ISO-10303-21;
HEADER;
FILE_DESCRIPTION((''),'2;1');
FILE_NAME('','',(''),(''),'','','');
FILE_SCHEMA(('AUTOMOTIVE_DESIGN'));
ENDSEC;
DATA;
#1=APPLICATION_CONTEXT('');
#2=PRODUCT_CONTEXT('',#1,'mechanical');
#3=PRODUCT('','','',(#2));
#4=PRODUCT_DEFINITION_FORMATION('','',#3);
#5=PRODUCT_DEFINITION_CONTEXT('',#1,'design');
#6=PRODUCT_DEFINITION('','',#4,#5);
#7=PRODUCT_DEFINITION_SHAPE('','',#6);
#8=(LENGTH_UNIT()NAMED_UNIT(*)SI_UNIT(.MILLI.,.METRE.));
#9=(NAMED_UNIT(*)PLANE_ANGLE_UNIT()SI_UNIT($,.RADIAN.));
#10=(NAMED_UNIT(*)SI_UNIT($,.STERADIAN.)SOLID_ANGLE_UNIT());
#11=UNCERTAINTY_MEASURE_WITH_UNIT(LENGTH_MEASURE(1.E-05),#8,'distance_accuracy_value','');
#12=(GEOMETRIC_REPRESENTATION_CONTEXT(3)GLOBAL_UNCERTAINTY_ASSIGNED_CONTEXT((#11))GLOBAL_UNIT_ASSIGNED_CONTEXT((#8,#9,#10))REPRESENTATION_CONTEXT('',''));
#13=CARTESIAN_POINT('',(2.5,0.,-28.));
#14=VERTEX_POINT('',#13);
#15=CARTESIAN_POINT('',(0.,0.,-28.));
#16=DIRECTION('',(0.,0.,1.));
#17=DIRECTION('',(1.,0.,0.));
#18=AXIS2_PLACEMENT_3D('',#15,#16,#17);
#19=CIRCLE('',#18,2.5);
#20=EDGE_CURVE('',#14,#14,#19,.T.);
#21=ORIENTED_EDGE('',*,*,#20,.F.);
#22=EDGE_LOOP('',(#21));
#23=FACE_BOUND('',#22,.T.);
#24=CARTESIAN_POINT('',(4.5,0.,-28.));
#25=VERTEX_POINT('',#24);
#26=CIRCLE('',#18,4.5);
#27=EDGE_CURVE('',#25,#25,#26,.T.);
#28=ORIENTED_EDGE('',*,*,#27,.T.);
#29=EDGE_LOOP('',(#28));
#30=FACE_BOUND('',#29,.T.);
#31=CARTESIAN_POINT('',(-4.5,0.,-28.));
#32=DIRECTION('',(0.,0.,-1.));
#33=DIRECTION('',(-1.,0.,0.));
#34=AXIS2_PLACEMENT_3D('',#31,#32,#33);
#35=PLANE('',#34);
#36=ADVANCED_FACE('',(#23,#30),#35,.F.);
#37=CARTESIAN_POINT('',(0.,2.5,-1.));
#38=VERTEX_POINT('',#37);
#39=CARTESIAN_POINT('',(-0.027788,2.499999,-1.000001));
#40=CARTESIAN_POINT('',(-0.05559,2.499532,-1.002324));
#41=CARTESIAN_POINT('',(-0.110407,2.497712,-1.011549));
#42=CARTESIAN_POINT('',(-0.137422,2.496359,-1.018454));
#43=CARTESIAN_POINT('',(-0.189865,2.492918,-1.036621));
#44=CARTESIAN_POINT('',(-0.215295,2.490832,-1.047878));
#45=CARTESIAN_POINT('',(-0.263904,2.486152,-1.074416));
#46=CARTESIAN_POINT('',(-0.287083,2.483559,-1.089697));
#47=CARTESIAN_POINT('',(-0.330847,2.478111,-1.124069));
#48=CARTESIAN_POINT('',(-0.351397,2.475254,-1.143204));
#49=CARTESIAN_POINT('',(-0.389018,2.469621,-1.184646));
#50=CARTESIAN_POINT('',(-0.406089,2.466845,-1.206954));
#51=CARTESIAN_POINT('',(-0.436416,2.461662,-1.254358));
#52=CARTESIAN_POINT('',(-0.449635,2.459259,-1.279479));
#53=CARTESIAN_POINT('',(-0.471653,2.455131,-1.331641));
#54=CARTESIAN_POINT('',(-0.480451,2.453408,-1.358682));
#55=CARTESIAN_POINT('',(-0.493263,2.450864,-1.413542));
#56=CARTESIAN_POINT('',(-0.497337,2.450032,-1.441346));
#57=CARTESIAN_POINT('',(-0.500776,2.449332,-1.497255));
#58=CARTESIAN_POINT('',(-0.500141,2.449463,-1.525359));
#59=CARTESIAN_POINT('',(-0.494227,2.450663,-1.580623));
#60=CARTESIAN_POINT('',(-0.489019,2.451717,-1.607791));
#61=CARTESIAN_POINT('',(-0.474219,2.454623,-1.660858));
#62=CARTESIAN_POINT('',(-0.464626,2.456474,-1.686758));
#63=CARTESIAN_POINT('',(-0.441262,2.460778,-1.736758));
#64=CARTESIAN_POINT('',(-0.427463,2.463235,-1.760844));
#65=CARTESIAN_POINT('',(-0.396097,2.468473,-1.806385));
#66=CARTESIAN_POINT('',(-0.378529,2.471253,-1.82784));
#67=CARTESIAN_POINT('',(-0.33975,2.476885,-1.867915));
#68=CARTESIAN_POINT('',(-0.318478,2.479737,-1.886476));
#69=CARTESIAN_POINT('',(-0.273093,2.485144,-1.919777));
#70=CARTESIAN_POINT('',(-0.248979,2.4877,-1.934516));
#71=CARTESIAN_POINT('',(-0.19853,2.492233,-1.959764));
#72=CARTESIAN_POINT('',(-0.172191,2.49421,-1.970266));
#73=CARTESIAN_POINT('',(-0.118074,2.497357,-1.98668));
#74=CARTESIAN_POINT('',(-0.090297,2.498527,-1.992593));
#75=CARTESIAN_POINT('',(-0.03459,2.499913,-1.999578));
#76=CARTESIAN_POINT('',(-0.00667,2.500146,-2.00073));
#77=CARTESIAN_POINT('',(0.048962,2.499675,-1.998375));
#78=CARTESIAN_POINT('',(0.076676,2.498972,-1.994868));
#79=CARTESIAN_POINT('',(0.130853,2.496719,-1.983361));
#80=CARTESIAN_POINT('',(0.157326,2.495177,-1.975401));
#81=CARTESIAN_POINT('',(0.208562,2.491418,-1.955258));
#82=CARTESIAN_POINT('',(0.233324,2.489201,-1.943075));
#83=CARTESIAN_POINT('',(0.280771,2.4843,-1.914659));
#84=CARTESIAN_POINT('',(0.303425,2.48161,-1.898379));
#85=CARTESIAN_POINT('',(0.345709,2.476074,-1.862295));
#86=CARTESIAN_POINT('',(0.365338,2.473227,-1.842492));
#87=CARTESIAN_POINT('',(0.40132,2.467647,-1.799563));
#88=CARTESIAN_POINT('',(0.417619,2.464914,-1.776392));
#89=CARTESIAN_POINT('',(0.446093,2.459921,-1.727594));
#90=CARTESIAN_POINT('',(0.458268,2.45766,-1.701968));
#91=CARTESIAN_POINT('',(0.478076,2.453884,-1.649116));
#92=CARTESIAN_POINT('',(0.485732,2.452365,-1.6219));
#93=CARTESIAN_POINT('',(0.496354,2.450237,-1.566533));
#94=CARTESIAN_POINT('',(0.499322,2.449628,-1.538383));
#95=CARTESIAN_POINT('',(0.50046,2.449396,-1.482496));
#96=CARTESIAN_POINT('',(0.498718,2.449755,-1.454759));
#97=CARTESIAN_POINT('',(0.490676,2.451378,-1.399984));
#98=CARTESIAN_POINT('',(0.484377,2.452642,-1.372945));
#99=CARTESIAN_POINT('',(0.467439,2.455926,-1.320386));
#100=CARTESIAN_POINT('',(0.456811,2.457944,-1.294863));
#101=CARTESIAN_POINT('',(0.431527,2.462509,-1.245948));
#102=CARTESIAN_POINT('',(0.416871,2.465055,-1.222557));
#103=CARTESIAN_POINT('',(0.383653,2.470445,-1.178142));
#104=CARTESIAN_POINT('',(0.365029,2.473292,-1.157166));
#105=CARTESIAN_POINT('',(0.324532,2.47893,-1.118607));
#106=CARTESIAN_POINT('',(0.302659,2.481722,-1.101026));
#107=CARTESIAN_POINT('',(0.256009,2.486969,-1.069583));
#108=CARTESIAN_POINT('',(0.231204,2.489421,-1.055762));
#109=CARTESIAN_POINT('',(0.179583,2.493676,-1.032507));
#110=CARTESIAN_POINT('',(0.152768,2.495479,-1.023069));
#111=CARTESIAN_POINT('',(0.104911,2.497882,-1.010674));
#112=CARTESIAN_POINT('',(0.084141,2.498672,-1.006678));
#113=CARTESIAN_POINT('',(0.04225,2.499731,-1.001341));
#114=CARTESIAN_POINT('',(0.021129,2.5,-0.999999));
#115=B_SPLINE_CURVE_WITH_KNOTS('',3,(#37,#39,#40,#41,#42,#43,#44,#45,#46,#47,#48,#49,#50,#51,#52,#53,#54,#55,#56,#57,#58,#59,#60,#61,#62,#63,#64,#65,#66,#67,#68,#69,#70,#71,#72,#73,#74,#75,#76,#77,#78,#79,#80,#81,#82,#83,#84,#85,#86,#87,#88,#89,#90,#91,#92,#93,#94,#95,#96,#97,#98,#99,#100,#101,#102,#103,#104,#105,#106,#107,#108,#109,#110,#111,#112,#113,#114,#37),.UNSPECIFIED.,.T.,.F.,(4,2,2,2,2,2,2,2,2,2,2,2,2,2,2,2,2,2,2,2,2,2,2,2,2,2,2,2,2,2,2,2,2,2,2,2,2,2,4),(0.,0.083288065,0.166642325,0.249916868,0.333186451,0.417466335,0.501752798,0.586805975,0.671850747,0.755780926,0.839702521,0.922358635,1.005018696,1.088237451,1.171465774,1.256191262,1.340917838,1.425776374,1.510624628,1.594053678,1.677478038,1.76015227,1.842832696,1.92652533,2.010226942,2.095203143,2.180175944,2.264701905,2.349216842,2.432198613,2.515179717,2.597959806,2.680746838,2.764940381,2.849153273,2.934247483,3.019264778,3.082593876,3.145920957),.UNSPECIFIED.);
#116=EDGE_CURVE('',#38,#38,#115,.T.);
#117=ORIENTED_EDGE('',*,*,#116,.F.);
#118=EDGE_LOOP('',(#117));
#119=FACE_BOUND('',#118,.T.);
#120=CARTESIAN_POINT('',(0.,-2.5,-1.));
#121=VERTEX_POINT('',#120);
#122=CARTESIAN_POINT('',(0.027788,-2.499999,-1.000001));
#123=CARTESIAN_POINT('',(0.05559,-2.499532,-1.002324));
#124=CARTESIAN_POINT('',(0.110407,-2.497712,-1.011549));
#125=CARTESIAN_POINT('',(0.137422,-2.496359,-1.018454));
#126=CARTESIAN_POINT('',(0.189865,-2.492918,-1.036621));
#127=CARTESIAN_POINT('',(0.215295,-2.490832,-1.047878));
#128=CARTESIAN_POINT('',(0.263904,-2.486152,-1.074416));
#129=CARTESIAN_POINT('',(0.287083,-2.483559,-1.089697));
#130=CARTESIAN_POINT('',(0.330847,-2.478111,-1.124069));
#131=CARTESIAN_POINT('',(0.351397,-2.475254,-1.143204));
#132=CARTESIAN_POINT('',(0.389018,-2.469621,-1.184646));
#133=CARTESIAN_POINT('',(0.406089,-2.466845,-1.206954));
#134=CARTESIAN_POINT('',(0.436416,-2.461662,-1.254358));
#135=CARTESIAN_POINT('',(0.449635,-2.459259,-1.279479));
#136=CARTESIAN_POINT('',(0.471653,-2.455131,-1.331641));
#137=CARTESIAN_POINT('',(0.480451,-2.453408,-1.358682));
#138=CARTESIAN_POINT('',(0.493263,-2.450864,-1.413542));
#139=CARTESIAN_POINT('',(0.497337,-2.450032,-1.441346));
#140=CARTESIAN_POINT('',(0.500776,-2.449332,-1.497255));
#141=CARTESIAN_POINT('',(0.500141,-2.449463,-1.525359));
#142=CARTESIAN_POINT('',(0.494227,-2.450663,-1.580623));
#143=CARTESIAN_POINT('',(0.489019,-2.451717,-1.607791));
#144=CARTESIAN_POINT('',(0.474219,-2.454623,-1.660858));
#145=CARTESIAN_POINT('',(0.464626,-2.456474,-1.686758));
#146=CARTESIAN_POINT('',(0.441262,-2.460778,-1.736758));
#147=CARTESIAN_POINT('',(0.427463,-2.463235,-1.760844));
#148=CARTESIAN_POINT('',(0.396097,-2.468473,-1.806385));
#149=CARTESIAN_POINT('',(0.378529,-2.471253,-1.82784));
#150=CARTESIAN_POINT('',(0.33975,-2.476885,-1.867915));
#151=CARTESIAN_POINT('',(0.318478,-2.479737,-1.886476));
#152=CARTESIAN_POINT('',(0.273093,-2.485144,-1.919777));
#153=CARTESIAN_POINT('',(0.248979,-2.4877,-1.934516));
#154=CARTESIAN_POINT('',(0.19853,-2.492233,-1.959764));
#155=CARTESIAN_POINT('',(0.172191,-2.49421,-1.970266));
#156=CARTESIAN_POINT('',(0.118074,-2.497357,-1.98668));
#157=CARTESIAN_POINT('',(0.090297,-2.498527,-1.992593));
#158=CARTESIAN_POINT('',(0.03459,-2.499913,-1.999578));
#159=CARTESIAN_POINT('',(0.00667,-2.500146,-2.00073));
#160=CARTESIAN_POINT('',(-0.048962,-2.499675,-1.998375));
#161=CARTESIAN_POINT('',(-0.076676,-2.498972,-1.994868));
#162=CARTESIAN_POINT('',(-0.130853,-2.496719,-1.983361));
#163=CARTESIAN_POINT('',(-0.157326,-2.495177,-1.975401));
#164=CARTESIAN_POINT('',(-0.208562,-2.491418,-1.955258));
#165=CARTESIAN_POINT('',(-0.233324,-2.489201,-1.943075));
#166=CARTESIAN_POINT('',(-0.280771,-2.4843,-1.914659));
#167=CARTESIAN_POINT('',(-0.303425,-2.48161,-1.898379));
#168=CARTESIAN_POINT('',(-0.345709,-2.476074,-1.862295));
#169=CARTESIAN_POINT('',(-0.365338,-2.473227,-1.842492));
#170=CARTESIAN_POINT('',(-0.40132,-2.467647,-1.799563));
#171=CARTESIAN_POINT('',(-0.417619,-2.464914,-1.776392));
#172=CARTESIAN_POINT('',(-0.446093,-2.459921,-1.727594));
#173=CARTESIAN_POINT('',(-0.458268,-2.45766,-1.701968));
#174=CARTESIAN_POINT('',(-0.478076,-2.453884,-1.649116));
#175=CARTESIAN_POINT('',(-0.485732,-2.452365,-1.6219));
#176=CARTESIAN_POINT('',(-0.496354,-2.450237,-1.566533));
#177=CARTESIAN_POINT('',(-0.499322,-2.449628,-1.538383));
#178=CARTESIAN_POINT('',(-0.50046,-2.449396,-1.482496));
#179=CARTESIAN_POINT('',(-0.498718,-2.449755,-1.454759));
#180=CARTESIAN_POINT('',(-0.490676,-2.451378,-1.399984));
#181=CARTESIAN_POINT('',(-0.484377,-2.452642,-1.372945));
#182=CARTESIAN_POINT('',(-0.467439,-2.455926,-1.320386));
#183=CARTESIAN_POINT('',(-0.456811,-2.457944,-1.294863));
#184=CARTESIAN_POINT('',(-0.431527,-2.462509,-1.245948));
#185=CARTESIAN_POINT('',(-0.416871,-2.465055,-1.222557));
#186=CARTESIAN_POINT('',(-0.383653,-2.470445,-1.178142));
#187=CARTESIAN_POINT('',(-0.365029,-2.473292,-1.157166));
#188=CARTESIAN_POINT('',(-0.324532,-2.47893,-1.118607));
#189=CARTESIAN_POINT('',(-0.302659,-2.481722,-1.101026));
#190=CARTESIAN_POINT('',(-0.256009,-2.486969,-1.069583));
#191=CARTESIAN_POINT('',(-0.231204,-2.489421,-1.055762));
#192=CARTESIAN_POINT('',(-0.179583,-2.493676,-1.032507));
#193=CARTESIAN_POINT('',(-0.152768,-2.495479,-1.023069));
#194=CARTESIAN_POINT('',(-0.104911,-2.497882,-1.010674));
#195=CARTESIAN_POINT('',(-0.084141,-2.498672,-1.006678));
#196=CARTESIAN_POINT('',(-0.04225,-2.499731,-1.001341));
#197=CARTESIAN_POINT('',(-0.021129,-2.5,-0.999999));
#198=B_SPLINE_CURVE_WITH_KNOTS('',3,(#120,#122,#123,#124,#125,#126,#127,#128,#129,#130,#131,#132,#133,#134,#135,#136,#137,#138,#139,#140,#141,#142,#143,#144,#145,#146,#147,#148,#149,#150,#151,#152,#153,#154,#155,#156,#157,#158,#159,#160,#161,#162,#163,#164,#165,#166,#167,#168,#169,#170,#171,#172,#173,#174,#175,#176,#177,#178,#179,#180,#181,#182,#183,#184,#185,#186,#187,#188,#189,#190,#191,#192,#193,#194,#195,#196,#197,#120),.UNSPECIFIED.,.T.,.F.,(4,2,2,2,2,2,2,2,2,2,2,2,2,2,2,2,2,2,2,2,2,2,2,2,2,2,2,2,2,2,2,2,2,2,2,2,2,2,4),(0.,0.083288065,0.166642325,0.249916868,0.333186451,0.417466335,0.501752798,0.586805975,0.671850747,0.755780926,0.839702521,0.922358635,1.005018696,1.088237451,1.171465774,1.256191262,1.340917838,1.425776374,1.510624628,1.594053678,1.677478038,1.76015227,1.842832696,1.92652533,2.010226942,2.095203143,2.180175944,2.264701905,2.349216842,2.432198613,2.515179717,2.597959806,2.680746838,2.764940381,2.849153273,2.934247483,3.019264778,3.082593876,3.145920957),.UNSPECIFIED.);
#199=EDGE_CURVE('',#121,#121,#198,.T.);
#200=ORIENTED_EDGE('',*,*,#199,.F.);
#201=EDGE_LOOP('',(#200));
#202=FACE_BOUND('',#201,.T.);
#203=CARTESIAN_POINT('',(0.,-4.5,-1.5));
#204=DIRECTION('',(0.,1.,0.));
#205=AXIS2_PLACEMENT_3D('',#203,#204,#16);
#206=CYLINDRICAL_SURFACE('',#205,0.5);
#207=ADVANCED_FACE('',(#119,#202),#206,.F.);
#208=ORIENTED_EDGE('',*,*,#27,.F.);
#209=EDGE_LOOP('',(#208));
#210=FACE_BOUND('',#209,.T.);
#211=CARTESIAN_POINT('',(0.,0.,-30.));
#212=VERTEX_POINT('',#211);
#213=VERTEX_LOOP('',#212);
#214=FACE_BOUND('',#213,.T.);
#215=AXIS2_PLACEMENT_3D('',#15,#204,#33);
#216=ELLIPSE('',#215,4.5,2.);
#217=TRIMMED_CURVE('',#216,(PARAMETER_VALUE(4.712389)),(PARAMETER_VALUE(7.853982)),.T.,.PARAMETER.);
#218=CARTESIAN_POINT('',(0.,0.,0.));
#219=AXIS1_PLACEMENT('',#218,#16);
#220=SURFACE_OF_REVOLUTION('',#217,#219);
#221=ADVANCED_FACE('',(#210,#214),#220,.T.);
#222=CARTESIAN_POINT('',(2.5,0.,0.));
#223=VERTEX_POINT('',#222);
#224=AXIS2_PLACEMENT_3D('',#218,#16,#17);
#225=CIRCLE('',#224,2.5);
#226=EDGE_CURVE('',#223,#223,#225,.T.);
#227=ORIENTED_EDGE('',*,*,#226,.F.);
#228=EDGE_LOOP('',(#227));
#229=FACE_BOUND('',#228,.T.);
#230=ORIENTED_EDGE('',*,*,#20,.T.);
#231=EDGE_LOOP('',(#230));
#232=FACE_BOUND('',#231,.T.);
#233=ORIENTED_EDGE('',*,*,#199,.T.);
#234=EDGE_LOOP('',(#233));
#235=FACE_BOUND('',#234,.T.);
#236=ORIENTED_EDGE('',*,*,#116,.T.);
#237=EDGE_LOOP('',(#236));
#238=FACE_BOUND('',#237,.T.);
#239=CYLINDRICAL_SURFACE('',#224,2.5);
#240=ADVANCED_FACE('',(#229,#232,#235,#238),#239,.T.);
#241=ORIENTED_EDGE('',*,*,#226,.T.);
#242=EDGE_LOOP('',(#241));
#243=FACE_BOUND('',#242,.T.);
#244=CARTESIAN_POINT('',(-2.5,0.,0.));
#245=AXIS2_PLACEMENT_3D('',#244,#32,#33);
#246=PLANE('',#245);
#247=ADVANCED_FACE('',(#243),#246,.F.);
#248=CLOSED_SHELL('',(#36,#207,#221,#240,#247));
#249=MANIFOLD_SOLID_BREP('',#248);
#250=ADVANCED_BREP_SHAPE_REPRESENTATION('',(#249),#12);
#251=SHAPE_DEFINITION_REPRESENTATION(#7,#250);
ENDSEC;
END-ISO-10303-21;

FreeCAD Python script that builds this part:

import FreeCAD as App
import Part
import Sketcher
from FreeCAD import Vector
Q = App.Units.Quantity

doc = App.newDocument("Part")
body = doc.addObject("PartDesign::Body", "Body")

sketch1 = body.newObject("Sketcher::SketchObject", "Sketch")
sketch1.AttachmentSupport = (doc.getObject("XZ_Plane"), [""])
sketch1.MapMode = "FlatFace"
sketch1.addGeometry(Part.LineSegment(Vector(0, 0, 0), Vector(0, -30, 0)), False)
sketch1.addGeometry(Part.BSplineCurve([Vector(0, -30, 0), Vector(-4.5, -30, 0), Vector(-4.5, -28, 0)], [3, 3], [4.71238898, 6.283185307], False, 2, [1, 0.707106781, 1], False), False)
sketch1.addGeometry(Part.LineSegment(Vector(-4.5, -28, 0), Vector(-2.5, -28, 0)), False)
sketch1.addGeometry(Part.LineSegment(Vector(-2.5, -28, 0), Vector(-2.5, 0, 0)), False)
sketch1.addGeometry(Part.LineSegment(Vector(-2.5, 0, 0), Vector(0, 0, 0)), False)
sketch1.addConstraint(Sketcher.Constraint("Block", 1))
sketch1.addConstraint(Sketcher.Constraint("Coincident", 0, 2, 1, 1))
sketch1.addConstraint(Sketcher.Constraint("Coincident", 1, 2, 2, 1))
sketch1.addConstraint(Sketcher.Constraint("Coincident", 2, 2, 3, 1))
sketch1.addConstraint(Sketcher.Constraint("Coincident", 3, 2, 4, 1))
sketch1.addConstraint(Sketcher.Constraint("Coincident", 4, 2, 0, 1))
sketch1.addConstraint(Sketcher.Constraint("Vertical", 0))
sketch1.addConstraint(Sketcher.Constraint("Horizontal", 2))
sketch1.addConstraint(Sketcher.Constraint("Vertical", 3))
sketch1.addConstraint(Sketcher.Constraint("Horizontal", 4))
sketch1.addConstraint(Sketcher.Constraint("PointOnObject", 3, 2, -1))
sketch1.addConstraint(Sketcher.Constraint("DistanceX", 2, 1, 2, 2, Q("2 mm")))
revolution = body.newObject("PartDesign::Revolution", "Revolution")
revolution.Profile = sketch1
revolution.ReferenceAxis = (sketch1, ["V_Axis"])
revolution.Angle = 360

sketch2 = body.newObject("Sketcher::SketchObject", "Sketch001")
sketch2.AttachmentSupport = (doc.getObject("XZ_Plane"), [""])
sketch2.MapMode = "FlatFace"
sketch2.addGeometry(Part.Circle(Vector(0, -1.5, 0), Vector(0, 0, 1), 0.5), False)
sketch2.addConstraint(Sketcher.Constraint("PointOnObject", 0, 3, -2))
sketch2.addConstraint(Sketcher.Constraint("Diameter", 0, Q("1 mm")))
sketch2.addConstraint(Sketcher.Constraint("DistanceY", 0, 3, -1, 1, Q("1.5 mm")))
pocket1 = body.newObject("PartDesign::Pocket", "Pocket")
pocket1.Profile = sketch2
pocket1.Type = "ThroughAll"
pocket1.Midplane = True

doc.recompute()
